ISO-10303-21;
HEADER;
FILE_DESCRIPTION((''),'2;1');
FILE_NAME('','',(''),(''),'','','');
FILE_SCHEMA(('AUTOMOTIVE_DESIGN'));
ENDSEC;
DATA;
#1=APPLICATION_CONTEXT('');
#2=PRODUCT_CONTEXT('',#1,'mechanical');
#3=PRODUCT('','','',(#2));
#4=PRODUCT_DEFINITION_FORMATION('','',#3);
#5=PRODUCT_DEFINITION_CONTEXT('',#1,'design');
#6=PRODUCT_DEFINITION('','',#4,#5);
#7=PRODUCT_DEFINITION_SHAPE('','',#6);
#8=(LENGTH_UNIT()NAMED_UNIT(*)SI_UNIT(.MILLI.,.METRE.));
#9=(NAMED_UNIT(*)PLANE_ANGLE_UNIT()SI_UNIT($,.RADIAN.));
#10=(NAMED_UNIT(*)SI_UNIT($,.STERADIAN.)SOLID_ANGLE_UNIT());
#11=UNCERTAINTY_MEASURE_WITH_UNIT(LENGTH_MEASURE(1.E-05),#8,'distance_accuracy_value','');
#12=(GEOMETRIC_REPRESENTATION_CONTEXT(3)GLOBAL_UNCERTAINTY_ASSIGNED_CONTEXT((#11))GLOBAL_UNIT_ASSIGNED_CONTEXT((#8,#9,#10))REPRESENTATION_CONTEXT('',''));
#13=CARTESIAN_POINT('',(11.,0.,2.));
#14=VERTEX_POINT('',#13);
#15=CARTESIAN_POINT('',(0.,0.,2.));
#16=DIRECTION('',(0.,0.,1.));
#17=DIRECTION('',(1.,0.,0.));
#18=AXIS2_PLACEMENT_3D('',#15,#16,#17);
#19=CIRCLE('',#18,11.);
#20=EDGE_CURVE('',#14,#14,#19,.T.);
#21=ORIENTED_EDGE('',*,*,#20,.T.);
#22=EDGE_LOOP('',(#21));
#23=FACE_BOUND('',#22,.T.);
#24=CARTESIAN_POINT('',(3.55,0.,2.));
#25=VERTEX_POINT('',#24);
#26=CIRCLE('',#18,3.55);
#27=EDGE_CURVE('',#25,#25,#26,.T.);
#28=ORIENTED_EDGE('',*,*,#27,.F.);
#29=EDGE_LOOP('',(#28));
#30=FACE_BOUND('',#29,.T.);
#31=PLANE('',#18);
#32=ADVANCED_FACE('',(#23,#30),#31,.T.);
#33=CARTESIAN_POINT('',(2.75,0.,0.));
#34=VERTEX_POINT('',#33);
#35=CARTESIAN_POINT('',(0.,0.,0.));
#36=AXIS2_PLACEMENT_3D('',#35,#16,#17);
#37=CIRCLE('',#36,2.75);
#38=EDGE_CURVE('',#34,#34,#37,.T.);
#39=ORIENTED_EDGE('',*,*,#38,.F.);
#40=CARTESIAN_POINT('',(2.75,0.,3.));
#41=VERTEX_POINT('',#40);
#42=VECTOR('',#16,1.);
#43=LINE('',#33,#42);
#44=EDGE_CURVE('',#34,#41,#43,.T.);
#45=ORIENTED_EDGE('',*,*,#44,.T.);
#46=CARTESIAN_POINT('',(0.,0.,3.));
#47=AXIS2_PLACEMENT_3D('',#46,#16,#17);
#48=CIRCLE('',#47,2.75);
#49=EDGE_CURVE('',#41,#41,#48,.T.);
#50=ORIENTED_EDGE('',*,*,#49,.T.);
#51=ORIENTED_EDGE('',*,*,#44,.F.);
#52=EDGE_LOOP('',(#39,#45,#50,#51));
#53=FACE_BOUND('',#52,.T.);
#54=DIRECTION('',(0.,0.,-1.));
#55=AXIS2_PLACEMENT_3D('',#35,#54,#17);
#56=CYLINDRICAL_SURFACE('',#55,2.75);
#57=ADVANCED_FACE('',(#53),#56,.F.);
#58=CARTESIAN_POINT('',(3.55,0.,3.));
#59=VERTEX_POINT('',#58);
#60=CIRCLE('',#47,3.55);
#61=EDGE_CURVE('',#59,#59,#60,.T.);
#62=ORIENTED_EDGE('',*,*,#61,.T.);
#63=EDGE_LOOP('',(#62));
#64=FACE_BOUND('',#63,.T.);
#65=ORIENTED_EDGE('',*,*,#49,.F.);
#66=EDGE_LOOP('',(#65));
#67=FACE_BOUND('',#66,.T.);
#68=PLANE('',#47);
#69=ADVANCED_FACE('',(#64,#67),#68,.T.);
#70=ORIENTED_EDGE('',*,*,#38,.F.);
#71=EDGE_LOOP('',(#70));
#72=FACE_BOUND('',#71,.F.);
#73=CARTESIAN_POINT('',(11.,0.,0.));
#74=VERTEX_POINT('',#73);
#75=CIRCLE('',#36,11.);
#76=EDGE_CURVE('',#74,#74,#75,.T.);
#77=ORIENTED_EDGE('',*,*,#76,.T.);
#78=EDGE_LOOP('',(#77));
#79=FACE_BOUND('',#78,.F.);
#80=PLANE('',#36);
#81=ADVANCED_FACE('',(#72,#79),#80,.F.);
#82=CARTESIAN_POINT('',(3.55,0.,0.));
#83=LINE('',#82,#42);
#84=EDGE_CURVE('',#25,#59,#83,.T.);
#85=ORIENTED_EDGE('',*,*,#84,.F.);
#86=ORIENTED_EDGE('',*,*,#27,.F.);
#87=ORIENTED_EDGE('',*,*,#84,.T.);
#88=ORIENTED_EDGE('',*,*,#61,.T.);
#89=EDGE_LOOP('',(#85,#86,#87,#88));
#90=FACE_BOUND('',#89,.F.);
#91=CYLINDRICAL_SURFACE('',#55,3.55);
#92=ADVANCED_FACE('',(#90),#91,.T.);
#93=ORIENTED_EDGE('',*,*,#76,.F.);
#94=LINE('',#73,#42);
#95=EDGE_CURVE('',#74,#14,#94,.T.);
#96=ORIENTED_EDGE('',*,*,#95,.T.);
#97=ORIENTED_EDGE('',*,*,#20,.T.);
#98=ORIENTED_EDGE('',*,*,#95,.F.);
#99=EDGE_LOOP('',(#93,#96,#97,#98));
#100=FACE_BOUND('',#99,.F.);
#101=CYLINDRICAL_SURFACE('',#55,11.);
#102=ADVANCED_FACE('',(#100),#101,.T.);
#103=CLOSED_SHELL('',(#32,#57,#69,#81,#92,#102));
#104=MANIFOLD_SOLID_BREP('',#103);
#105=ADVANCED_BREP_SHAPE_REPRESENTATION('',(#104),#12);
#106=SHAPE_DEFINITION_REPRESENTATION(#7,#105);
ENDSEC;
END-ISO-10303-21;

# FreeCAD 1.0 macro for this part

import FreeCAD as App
import Part
import Sketcher
from FreeCAD import Vector
Q = App.Units.Quantity

doc = App.newDocument("Part")
body = doc.addObject("PartDesign::Body", "Body")

# Sketch on XY plane
sketch1 = doc.addObject("Sketcher::SketchObject", "Sketch")
body.addObject(sketch1)
sketch1.AttachmentSupport = (doc.XY_Plane, [""])
sketch1.MapMode = "FlatFace"
sketch1.addGeometry(Part.Circle(Vector(0, 0, 0), Vector(0, 0, 1), 3.55), False)
sketch1.addGeometry(Part.Circle(Vector(0, 0, 0), Vector(0, 0, 1), 2.75), False)
sketch1.addConstraint(Sketcher.Constraint("Coincident", 0, 3, -1, 1))
sketch1.addConstraint(Sketcher.Constraint("Coincident", 1, 3, -1, 1))
sketch1.addConstraint(Sketcher.Constraint("Diameter", 0, Q("7.1 mm")))
sketch1.addConstraint(Sketcher.Constraint("Diameter", 1, Q("5.5 mm")))
pad1 = doc.addObject("PartDesign::Pad", "Pad")
body.addObject(pad1)
pad1.Profile = sketch1
pad1.Length = 3

# Sketch on XY plane
sketch2 = doc.addObject("Sketcher::SketchObject", "Sketch001")
body.addObject(sketch2)
sketch2.AttachmentSupport = (doc.XY_Plane, [""])
sketch2.MapMode = "FlatFace"
sketch2.addGeometry(Part.Circle(Vector(0, 0, 0), Vector(0, 0, 1), 11), False)
sketch2.addGeometry(Part.Circle(Vector(0, 0, 0), Vector(0, 0, 1), 3.55), False)
sketch2.addConstraint(Sketcher.Constraint("Coincident", 0, 3, -1, 1))
sketch2.addConstraint(Sketcher.Constraint("Coincident", 1, 3, -1, 1))
sketch2.addConstraint(Sketcher.Constraint("Diameter", 0, Q("22 mm")))
sketch2.addConstraint(Sketcher.Constraint("Diameter", 1, Q("7.1 mm")))
pad2 = doc.addObject("PartDesign::Pad", "Pad001")
body.addObject(pad2)
pad2.Profile = sketch2
pad2.Length = 2

doc.recompute()
